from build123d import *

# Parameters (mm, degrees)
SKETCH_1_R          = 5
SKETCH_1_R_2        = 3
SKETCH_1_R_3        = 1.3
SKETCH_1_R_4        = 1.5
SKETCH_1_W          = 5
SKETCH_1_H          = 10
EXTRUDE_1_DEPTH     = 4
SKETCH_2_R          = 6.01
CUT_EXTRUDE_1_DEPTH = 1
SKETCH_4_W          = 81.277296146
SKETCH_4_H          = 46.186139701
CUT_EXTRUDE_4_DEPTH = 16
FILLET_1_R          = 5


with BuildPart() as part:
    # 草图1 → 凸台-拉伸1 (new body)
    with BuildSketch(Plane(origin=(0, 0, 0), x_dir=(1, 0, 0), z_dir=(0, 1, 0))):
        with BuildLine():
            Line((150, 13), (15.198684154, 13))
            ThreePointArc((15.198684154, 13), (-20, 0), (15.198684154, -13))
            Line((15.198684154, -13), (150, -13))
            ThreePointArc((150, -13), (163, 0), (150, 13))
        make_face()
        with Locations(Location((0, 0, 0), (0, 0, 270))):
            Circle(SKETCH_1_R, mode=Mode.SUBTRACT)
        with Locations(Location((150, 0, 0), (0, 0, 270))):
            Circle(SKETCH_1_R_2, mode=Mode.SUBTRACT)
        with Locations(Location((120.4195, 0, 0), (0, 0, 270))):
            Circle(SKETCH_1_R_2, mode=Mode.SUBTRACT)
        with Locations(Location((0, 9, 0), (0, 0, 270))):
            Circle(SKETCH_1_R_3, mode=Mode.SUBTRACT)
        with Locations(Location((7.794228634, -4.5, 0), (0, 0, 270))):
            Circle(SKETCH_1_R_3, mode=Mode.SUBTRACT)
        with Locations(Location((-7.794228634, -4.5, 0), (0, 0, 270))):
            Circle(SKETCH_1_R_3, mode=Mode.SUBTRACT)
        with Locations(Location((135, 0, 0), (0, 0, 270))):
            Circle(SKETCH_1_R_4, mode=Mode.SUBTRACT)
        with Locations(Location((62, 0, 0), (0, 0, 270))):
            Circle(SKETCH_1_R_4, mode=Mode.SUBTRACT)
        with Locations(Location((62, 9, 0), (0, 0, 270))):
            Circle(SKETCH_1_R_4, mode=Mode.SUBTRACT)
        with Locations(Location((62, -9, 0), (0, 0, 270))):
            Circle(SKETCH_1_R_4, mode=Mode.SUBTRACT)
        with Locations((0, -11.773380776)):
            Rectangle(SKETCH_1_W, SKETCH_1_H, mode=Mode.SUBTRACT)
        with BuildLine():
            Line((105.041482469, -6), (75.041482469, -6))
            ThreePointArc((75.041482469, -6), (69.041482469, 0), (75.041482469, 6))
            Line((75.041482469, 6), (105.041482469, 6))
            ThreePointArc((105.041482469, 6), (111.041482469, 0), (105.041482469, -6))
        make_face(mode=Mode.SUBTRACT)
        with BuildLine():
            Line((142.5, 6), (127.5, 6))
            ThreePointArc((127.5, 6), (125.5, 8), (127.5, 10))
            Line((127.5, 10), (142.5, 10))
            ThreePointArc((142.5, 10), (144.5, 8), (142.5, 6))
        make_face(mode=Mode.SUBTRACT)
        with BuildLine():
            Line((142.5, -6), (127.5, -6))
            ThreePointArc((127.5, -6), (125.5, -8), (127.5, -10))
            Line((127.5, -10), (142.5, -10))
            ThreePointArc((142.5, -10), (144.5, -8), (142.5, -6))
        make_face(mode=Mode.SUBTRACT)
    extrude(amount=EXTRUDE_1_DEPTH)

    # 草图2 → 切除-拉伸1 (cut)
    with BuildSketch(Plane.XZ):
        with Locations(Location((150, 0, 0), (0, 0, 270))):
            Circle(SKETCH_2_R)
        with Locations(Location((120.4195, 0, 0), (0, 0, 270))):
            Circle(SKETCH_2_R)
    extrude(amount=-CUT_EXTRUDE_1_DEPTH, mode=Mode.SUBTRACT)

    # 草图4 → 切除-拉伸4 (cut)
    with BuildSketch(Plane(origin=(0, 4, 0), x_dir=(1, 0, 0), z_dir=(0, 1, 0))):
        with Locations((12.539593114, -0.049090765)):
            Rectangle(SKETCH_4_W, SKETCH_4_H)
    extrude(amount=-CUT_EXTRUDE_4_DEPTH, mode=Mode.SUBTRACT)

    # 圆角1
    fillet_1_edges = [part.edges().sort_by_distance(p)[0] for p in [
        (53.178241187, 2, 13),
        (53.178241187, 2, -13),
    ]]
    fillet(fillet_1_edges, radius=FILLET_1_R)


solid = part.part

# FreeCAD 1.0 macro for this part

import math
import FreeCAD as App
import Part
import Sketcher
Q = App.Units.Quantity


def edges_at(feature, points):
    """Names of the edges that pass closest to the given points."""
    edges = feature.Shape.Edges
    near = lambda p: min(range(len(edges)), key=lambda i: edges[i].distToShape(Part.Vertex(*p))[0])
    return sorted({f"Edge{near(p) + 1}" for p in points})


def add_polygon(sketch, points):
    """Adds a closed chain of lines whose ends are joined by coincident constraints."""
    first, n = sketch.GeometryCount, len(points)
    for a, b in zip(points, points[1:] + points[:1]):
        sketch.addGeometry(Part.LineSegment(App.Vector(*a, 0), App.Vector(*b, 0)), False)
    for i in range(n):
        sketch.addConstraint(Sketcher.Constraint("Coincident", first + i, 2, first + (i + 1) % n, 1))

doc = App.newDocument("Part")
body = doc.addObject("PartDesign::Body", "Body")

# Sketch on XZ plane
sketch1 = body.newObject("Sketcher::SketchObject", "Sketch")
sketch1.AttachmentSupport = (doc.getObject("XZ_Plane"), [""])
sketch1.MapMode = "FlatFace"
sketch1.addGeometry(Part.LineSegment(App.Vector(150, -13, 0), App.Vector(15.198684, -13, 0)), False)  # 0
sketch1.addGeometry(Part.ArcOfCircle(Part.Circle(App.Vector(0, 0, 0), App.Vector(0, 0, 1), 20), math.radians(40.541602), math.radians(319.458398)), False)  # 1
sketch1.addGeometry(Part.LineSegment(App.Vector(15.198684, 13, 0), App.Vector(150, 13, 0)), False)  # 2
sketch1.addGeometry(Part.ArcOfCircle(Part.Circle(App.Vector(150, 0, 0), App.Vector(0, 0, 1), 13), math.radians(-90), math.radians(90)), False)  # 3
add_polygon(sketch1, [(2.5, 16.773381), (-2.5, 16.773381), (-2.5, 6.773381), (2.5, 6.773381)])  # lines 4-7
sketch1.addGeometry(Part.Circle(App.Vector(-7.794229, 4.5, 0), App.Vector(0, 0, 1), 1.3), False)  # 8
sketch1.addGeometry(Part.Circle(App.Vector(7.794229, 4.5, 0), App.Vector(0, 0, 1), 1.3), False)  # 9
sketch1.addGeometry(Part.Circle(App.Vector(62, 9, 0), App.Vector(0, 0, 1), 1.5), False)  # 10
sketch1.addGeometry(Part.LineSegment(App.Vector(127.5, 6, 0), App.Vector(142.5, 6, 0)), False)  # 11
sketch1.addGeometry(Part.ArcOfCircle(Part.Circle(App.Vector(142.5, 8, 0), App.Vector(0, 0, 1), 2), math.radians(-90), math.radians(90)), False)  # 12
sketch1.addGeometry(Part.LineSegment(App.Vector(142.5, 10, 0), App.Vector(127.5, 10, 0)), False)  # 13
sketch1.addGeometry(Part.ArcOfCircle(Part.Circle(App.Vector(127.5, 8, 0), App.Vector(0, 0, 1), 2), math.radians(90), math.radians(270)), False)  # 14
sketch1.addGeometry(Part.Circle(App.Vector(0, 0, 0), App.Vector(0, 0, 1), 5), False)  # 15
sketch1.addGeometry(Part.Circle(App.Vector(62, 0, 0), App.Vector(0, 0, 1), 1.5), False)  # 16
sketch1.addGeometry(Part.Circle(App.Vector(0, -9, 0), App.Vector(0, 0, 1), 1.3), False)  # 17
sketch1.addGeometry(Part.Circle(App.Vector(62, -9, 0), App.Vector(0, 0, 1), 1.5), False)  # 18
sketch1.addGeometry(Part.ArcOfCircle(Part.Circle(App.Vector(105.041482, 0, 0), App.Vector(0, 0, 1), 6), math.radians(-90), math.radians(90)), False)  # 19
sketch1.addGeometry(Part.LineSegment(App.Vector(105.041482, 6, 0), App.Vector(75.041482, 6, 0)), False)  # 20
sketch1.addGeometry(Part.ArcOfCircle(Part.Circle(App.Vector(75.041482, 0, 0), App.Vector(0, 0, 1), 6), math.radians(90), math.radians(270)), False)  # 21
sketch1.addGeometry(Part.LineSegment(App.Vector(75.041482, -6, 0), App.Vector(105.041482, -6, 0)), False)  # 22
sketch1.addGeometry(Part.Circle(App.Vector(120.4195, 0, 0), App.Vector(0, 0, 1), 3), False)  # 23
sketch1.addGeometry(Part.Circle(App.Vector(135, 0, 0), App.Vector(0, 0, 1), 1.5), False)  # 24
sketch1.addGeometry(Part.Circle(App.Vector(150, 0, 0), App.Vector(0, 0, 1), 3), False)  # 25
sketch1.addGeometry(Part.ArcOfCircle(Part.Circle(App.Vector(142.5, -8, 0), App.Vector(0, 0, 1), 2), math.radians(-90), math.radians(90)), False)  # 26
sketch1.addGeometry(Part.LineSegment(App.Vector(142.5, -6, 0), App.Vector(127.5, -6, 0)), False)  # 27
sketch1.addGeometry(Part.ArcOfCircle(Part.Circle(App.Vector(127.5, -8, 0), App.Vector(0, 0, 1), 2), math.radians(90), math.radians(270)), False)  # 28
sketch1.addGeometry(Part.LineSegment(App.Vector(127.5, -10, 0), App.Vector(142.5, -10, 0)), False)  # 29
sketch1.addConstraint([
    Sketcher.Constraint("Coincident", 0, 2, 1, 2),
    Sketcher.Constraint("Coincident", 1, 1, 2, 1),
    Sketcher.Constraint("Tangent", 2, 2, 3, 2),
    Sketcher.Constraint("Tangent", 3, 1, 0, 1),
    Sketcher.Constraint("Tangent", 11, 2, 12, 1),
    Sketcher.Constraint("Tangent", 12, 2, 13, 1),
    Sketcher.Constraint("Tangent", 13, 2, 14, 1),
    Sketcher.Constraint("Tangent", 14, 2, 11, 1),
    Sketcher.Constraint("Tangent", 19, 2, 20, 1),
    Sketcher.Constraint("Tangent", 20, 2, 21, 1),
    Sketcher.Constraint("Tangent", 21, 2, 22, 1),
    Sketcher.Constraint("Tangent", 22, 2, 19, 1),
    Sketcher.Constraint("Tangent", 26, 2, 27, 1),
    Sketcher.Constraint("Tangent", 27, 2, 28, 1),
    Sketcher.Constraint("Tangent", 28, 2, 29, 1),
    Sketcher.Constraint("Tangent", 29, 2, 26, 1),
    Sketcher.Constraint("Horizontal", 0),
    Sketcher.Constraint("Horizontal", 2),
    Sketcher.Constraint("Horizontal", 4),
    Sketcher.Constraint("Vertical", 5),
    Sketcher.Constraint("Horizontal", 6),
    Sketcher.Constraint("Vertical", 7),
    Sketcher.Constraint("Horizontal", 11),
    Sketcher.Constraint("Horizontal", 13),
    Sketcher.Constraint("Horizontal", 20),
    Sketcher.Constraint("Horizontal", 22),
    Sketcher.Constraint("Horizontal", 27),
    Sketcher.Constraint("Horizontal", 29),
    Sketcher.Constraint("Coincident", 1, 3, -1, 1),
    Sketcher.Constraint("Coincident", 15, 3, -1, 1),
    Sketcher.Constraint("Coincident", 25, 3, 3, 3),
    Sketcher.Constraint("Equal", 8, 9),
    Sketcher.Constraint("Equal", 10, 16),
    Sketcher.Constraint("Equal", 9, 17),
    Sketcher.Constraint("Equal", 16, 18),
    Sketcher.Constraint("Equal", 18, 24),
    Sketcher.Constraint("Equal", 23, 25),
    Sketcher.Constraint("Equal", 14, 26),
    Sketcher.Constraint("Symmetric", 8, 3, 9, 3, -2),
    Sketcher.Constraint("Symmetric", 10, 3, 18, 3, -1),
    Sketcher.Constraint("Symmetric", 12, 3, 26, 3, -1),
    Sketcher.Constraint("PointOnObject", 3, 3, -1),
    Sketcher.Constraint("PointOnObject", 16, 3, -1),
    Sketcher.Constraint("PointOnObject", 17, 3, -2),
    Sketcher.Constraint("PointOnObject", 19, 3, -1),
    Sketcher.Constraint("PointOnObject", 23, 3, -1),
    Sketcher.Constraint("PointOnObject", 24, 3, -1),
    Sketcher.Constraint("Horizontal", 17, 3, 18, 3),
    Sketcher.Constraint("Horizontal", 14, 2, 19, 2),
    Sketcher.Constraint("Vertical", 10, 3, 16, 3),
    Sketcher.Constraint("Vertical", 14, 3, 28, 3),
    Sketcher.Constraint("Diameter", 10, Q("3 mm")),
    Sketcher.Constraint("Diameter", 15, Q("10 mm")),
    Sketcher.Constraint("Diameter", 23, Q("6 mm")),
    Sketcher.Constraint("Radius", 1, Q("20 mm")),
    Sketcher.Constraint("Radius", 3, Q("13 mm")),
    Sketcher.Constraint("Radius", 12, Q("2 mm")),
    Sketcher.Constraint("Radius", 19, Q("6 mm")),
    Sketcher.Constraint("Diameter", 8, Q("2.6 mm")),
    Sketcher.Constraint("DistanceX", 4, 2, 4, 1, Q("5 mm")),
    Sketcher.Constraint("DistanceX", 11, 1, 11, 2, Q("15 mm")),
    Sketcher.Constraint("DistanceX", 20, 2, 20, 1, Q("30 mm")),
    Sketcher.Constraint("DistanceY", 5, 2, 5, 1, Q("10 mm")),
    Sketcher.Constraint("DistanceX", -1, 1, 3, 3, Q("150 mm")),
    Sketcher.Constraint("DistanceX", -1, 1, 10, 3, Q("62 mm")),
    Sketcher.Constraint("DistanceY", -1, 1, 10, 3, Q("9 mm")),
    Sketcher.Constraint("DistanceX", -1, 1, 24, 3, Q("135 mm")),
    Sketcher.Constraint("DistanceY", -1, 1, 8, 3, Q("4.5 mm")),
    Sketcher.Constraint("DistanceX", -1, 1, 12, 3, Q("142.5 mm")),
    Sketcher.Constraint("DistanceX", 4, 2, -1, 1, Q("2.5 mm")),
    Sketcher.Constraint("DistanceX", -1, 1, 23, 3, Q("120.4195 mm")),
    Sketcher.Constraint("DistanceX", 8, 3, -1, 1, Q("7.794229 mm")),
    Sketcher.Constraint("DistanceY", -1, 1, 4, 2, Q("16.773381 mm")),
    Sketcher.Constraint("DistanceX", -1, 1, 19, 3, Q("105.041482 mm")),
])
pad1 = body.newObject("PartDesign::Pad", "Pad")
pad1.Profile = sketch1
pad1.Length = 4
pad1.Reversed = True

# Sketch on XZ plane
sketch2 = body.newObject("Sketcher::SketchObject", "Sketch001")
sketch2.AttachmentSupport = (doc.getObject("XZ_Plane"), [""])
sketch2.MapMode = "FlatFace"
sketch2.addGeometry([
    Part.Circle(App.Vector(150, 0, 0), App.Vector(0, 0, 1), 6.01),
    Part.Circle(App.Vector(120.4195, 0, 0), App.Vector(0, 0, 1), 6.01),
], False)
sketch2.addConstraint([
    Sketcher.Constraint("Equal", 0, 1),
    Sketcher.Constraint("PointOnObject", 0, 3, -1),
    Sketcher.Constraint("PointOnObject", 1, 3, -1),
    Sketcher.Constraint("Diameter", 0, Q("12.02 mm")),
    Sketcher.Constraint("DistanceX", -1, 1, 0, 3, Q("150 mm")),
    Sketcher.Constraint("DistanceX", -1, 1, 1, 3, Q("120.4195 mm")),
])
pocket1 = body.newObject("PartDesign::Pocket", "Pocket")
pocket1.Profile = sketch2
pocket1.Length = 1

# Sketch on XZ plane
sketch3 = body.newObject("Sketcher::SketchObject", "Sketch002")
sketch3.AttachmentSupport = (doc.getObject("XZ_Plane"), [""])
sketch3.MapMode = "FlatFace"
sketch3.AttachmentOffset = App.Placement(App.Vector(0, 0, -4), App.Rotation())
add_polygon(sketch3, [(-28.099055, -23.043979), (-28.099055, 23.142161), (53.178241, 23.142161), (53.178241, -23.043979)])  # lines 0-3
sketch3.addConstraint([
    Sketcher.Constraint("Vertical", 0),
    Sketcher.Constraint("Horizontal", 1),
    Sketcher.Constraint("Vertical", 2),
    Sketcher.Constraint("Horizontal", 3),
    Sketcher.Constraint("DistanceY", 0, 1, 0, 2, Q("46.18614 mm")),
    Sketcher.Constraint("DistanceX", 1, 1, 1, 2, Q("81.277296 mm")),
    Sketcher.Constraint("DistanceY", -1, 1, 0, 2, Q("23.142161 mm")),
    Sketcher.Constraint("DistanceX", -1, 1, 1, 2, Q("53.178241 mm")),
])
pocket2 = body.newObject("PartDesign::Pocket", "Pocket001")
pocket2.Profile = sketch3
pocket2.Length = 16
pocket2.Reversed = True
doc.recompute()

fillet = body.newObject("PartDesign::Fillet", "Fillet")
fillet.Base = (pocket2, edges_at(pocket2, [(53.178, 2, 13), (53.178, 2, -13)]))
fillet.Radius = 5

doc.recompute()
